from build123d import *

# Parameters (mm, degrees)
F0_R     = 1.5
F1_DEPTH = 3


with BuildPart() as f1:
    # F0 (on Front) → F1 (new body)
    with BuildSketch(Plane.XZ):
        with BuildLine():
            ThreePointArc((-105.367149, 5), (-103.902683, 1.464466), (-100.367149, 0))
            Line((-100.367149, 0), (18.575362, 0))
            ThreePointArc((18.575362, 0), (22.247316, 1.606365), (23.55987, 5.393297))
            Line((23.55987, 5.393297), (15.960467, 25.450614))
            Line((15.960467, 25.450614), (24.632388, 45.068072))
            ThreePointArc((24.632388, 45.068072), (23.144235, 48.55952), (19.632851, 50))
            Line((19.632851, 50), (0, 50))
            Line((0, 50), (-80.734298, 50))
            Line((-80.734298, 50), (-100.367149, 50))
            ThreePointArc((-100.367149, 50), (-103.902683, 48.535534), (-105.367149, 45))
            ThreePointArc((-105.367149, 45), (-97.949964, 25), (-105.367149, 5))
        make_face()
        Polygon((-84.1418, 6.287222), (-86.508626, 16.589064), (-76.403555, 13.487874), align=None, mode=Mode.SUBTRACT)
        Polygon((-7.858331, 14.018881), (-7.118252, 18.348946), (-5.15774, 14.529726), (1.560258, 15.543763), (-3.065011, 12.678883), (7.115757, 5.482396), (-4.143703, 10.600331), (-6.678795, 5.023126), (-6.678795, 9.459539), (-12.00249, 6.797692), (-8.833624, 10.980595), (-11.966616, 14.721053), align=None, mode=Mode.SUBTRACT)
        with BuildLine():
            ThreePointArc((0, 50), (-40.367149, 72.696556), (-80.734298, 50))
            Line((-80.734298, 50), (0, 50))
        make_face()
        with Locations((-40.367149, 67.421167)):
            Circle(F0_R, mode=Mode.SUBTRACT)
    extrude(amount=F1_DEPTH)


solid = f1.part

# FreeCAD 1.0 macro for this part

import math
import FreeCAD as App
import Part
import Sketcher
Q = App.Units.Quantity

doc = App.newDocument("Part")
body = doc.addObject("PartDesign::Body", "Body")

sketch1 = body.newObject("Sketcher::SketchObject", "Sketch")
sketch1.AttachmentSupport = (doc.getObject("XZ_Plane"), [""])
sketch1.MapMode = "FlatFace"
sketch1.addGeometry(Part.ArcOfCircle(Part.Circle(App.Vector(-100.4, 5, 0), App.Vector(0, 0, 1), 5), math.radians(180), math.radians(270)), False)
sketch1.addGeometry(Part.LineSegment(App.Vector(-100.4, 0, 0), App.Vector(18.6, 0, 0)), False)
sketch1.addGeometry(Part.ArcOfCircle(Part.Circle(App.Vector(18.6, 5, 0), App.Vector(0, 0, 1), 5), math.radians(-90), math.radians(5)), False)
sketch1.addGeometry(Part.LineSegment(App.Vector(23.6, 5.4, 0), App.Vector(16, 25.5, 0)), False)
sketch1.addGeometry(Part.LineSegment(App.Vector(16, 25.5, 0), App.Vector(24.6, 45.1, 0)), False)
sketch1.addGeometry(Part.ArcOfCircle(Part.Circle(App.Vector(19.6, 45, 0), App.Vector(0, 0, 1), 5), math.radians(1), math.radians(90)), False)
sketch1.addGeometry(Part.LineSegment(App.Vector(19.6, 50, 0), App.Vector(0, 50, 0)), False)
sketch1.addGeometry(Part.ArcOfCircle(Part.Circle(App.Vector(-40.4, 25.5, 0), App.Vector(0, 0, 1), 47.2), math.radians(31), math.radians(149)), False)
sketch1.addGeometry(Part.LineSegment(App.Vector(-80.7, 50, 0), App.Vector(-100.4, 50, 0)), False)
sketch1.addGeometry(Part.ArcOfCircle(Part.Circle(App.Vector(-100.4, 45, 0), App.Vector(0, 0, 1), 5), math.radians(90), math.radians(180)), False)
sketch1.addGeometry(Part.ArcOfCircle(Part.Circle(App.Vector(-128.6, 25, 0), App.Vector(0, 0, 1), 30.7), math.radians(-41), math.radians(41)), False)
sketch1.addGeometry(Part.LineSegment(App.Vector(-76.4, 13.5, 0), App.Vector(-84.1, 6.3, 0)), False)
sketch1.addGeometry(Part.LineSegment(App.Vector(-84.1, 6.3, 0), App.Vector(-86.5, 16.6, 0)), False)
sketch1.addGeometry(Part.LineSegment(App.Vector(-86.5, 16.6, 0), App.Vector(-76.4, 13.5, 0)), False)
sketch1.addGeometry(Part.LineSegment(App.Vector(-12, 14.7, 0), App.Vector(-7.9, 14, 0)), False)
sketch1.addGeometry(Part.LineSegment(App.Vector(-7.9, 14, 0), App.Vector(-7.1, 18.3, 0)), False)
sketch1.addGeometry(Part.LineSegment(App.Vector(-7.1, 18.3, 0), App.Vector(-5.2, 14.5, 0)), False)
sketch1.addGeometry(Part.LineSegment(App.Vector(-5.2, 14.5, 0), App.Vector(1.6, 15.5, 0)), False)
sketch1.addGeometry(Part.LineSegment(App.Vector(1.6, 15.5, 0), App.Vector(-3.1, 12.7, 0)), False)
sketch1.addGeometry(Part.LineSegment(App.Vector(-3.1, 12.7, 0), App.Vector(7.1, 5.5, 0)), False)
sketch1.addGeometry(Part.LineSegment(App.Vector(7.1, 5.5, 0), App.Vector(-4.1, 10.6, 0)), False)
sketch1.addGeometry(Part.LineSegment(App.Vector(-4.1, 10.6, 0), App.Vector(-6.7, 5, 0)), False)
sketch1.addGeometry(Part.LineSegment(App.Vector(-6.7, 5, 0), App.Vector(-6.7, 9.5, 0)), False)
sketch1.addGeometry(Part.LineSegment(App.Vector(-6.7, 9.5, 0), App.Vector(-12, 6.8, 0)), False)
sketch1.addGeometry(Part.LineSegment(App.Vector(-12, 6.8, 0), App.Vector(-8.8, 11, 0)), False)
sketch1.addGeometry(Part.LineSegment(App.Vector(-8.8, 11, 0), App.Vector(-12, 14.7, 0)), False)
sketch1.addGeometry(Part.Circle(App.Vector(-40.4, 67.4, 0), App.Vector(0, 0, 1), 1.5), False)
sketch1.addConstraint(Sketcher.Constraint("Tangent", 0, 2, 1, 1))
sketch1.addConstraint(Sketcher.Constraint("Tangent", 1, 2, 2, 1))
sketch1.addConstraint(Sketcher.Constraint("Coincident", 2, 2, 3, 1))
sketch1.addConstraint(Sketcher.Constraint("Coincident", 3, 2, 4, 1))
sketch1.addConstraint(Sketcher.Constraint("Coincident", 4, 2, 5, 1))
sketch1.addConstraint(Sketcher.Constraint("Tangent", 5, 2, 6, 1))
sketch1.addConstraint(Sketcher.Constraint("Coincident", 6, 2, 7, 1))
sketch1.addConstraint(Sketcher.Constraint("Coincident", 7, 2, 8, 1))
sketch1.addConstraint(Sketcher.Constraint("Tangent", 8, 2, 9, 1))
sketch1.addConstraint(Sketcher.Constraint("Coincident", 9, 2, 10, 2))
sketch1.addConstraint(Sketcher.Constraint("Coincident", 10, 1, 0, 1))
sketch1.addConstraint(Sketcher.Constraint("Coincident", 11, 2, 12, 1))
sketch1.addConstraint(Sketcher.Constraint("Coincident", 12, 2, 13, 1))
sketch1.addConstraint(Sketcher.Constraint("Coincident", 13, 2, 11, 1))
sketch1.addConstraint(Sketcher.Constraint("Coincident", 14, 2, 15, 1))
sketch1.addConstraint(Sketcher.Constraint("Coincident", 15, 2, 16, 1))
sketch1.addConstraint(Sketcher.Constraint("Coincident", 16, 2, 17, 1))
sketch1.addConstraint(Sketcher.Constraint("Coincident", 17, 2, 18, 1))
sketch1.addConstraint(Sketcher.Constraint("Coincident", 18, 2, 19, 1))
sketch1.addConstraint(Sketcher.Constraint("Coincident", 19, 2, 20, 1))
sketch1.addConstraint(Sketcher.Constraint("Coincident", 20, 2, 21, 1))
sketch1.addConstraint(Sketcher.Constraint("Coincident", 21, 2, 22, 1))
sketch1.addConstraint(Sketcher.Constraint("Coincident", 22, 2, 23, 1))
sketch1.addConstraint(Sketcher.Constraint("Coincident", 23, 2, 24, 1))
sketch1.addConstraint(Sketcher.Constraint("Coincident", 24, 2, 25, 1))
sketch1.addConstraint(Sketcher.Constraint("Coincident", 25, 2, 14, 1))
sketch1.addConstraint(Sketcher.Constraint("Horizontal", 1))
sketch1.addConstraint(Sketcher.Constraint("Horizontal", 6))
sketch1.addConstraint(Sketcher.Constraint("Horizontal", 8))
sketch1.addConstraint(Sketcher.Constraint("Vertical", 22))
sketch1.addConstraint(Sketcher.Constraint("Equal", 0, 2))
sketch1.addConstraint(Sketcher.Constraint("Equal", 2, 5))
sketch1.addConstraint(Sketcher.Constraint("Equal", 5, 9))
sketch1.addConstraint(Sketcher.Constraint("PointOnObject", 0, 2, -1))
sketch1.addConstraint(Sketcher.Constraint("PointOnObject", 6, 2, -2))
sketch1.addConstraint(Sketcher.Constraint("Perpendicular", 14, 15))
sketch1.addConstraint(Sketcher.Constraint("Perpendicular", 20, 21))
sketch1.addConstraint(Sketcher.Constraint("Horizontal", 5, 3, 9, 3))
sketch1.addConstraint(Sketcher.Constraint("Horizontal", 7, 3, 3, 2))
sketch1.addConstraint(Sketcher.Constraint("Horizontal", 5, 3, 9, 2))
sketch1.addConstraint(Sketcher.Constraint("Horizontal", 2, 3, 10, 1))
sketch1.addConstraint(Sketcher.Constraint("Vertical", 0, 3, 9, 3))
sketch1.addConstraint(Sketcher.Constraint("Vertical", 7, 3, 26, 3))
sketch1.addConstraint(Sketcher.Constraint("Equal", 6, 8))
sketch1.addConstraint(Sketcher.Constraint("Equal", 3, 4))
sketch1.addConstraint(Sketcher.Constraint("Equal", 11, 12))
sketch1.addConstraint(Sketcher.Constraint("Equal", 12, 13))
sketch1.addConstraint(Sketcher.Constraint("Diameter", 26, Q("3 mm")))
sketch1.addConstraint(Sketcher.Constraint("Radius", 0, Q("5 mm")))
sketch1.addConstraint(Sketcher.Constraint("DistanceY", -1, 1, 5, 3, Q("44.999999 mm")))
sketch1.addConstraint(Sketcher.Constraint("Radius", 10, Q("30.673 mm")))
sketch1.addConstraint(Sketcher.Constraint("DistanceX", 0, 3, 5, 3, Q("120 mm")))
sketch1.addConstraint(Sketcher.Constraint("Radius", 7, Q("47.245943 mm")))
sketch1.addConstraint(Sketcher.Constraint("DistanceX", 16, 2, 17, 2, Q("6.717998 mm")))
sketch1.addConstraint(Sketcher.Constraint("Distance", 17, Q("6.794098 mm")))
sketch1.addConstraint(Sketcher.Constraint("DistanceX", 1, 1, 1, 2, Q("118.942511 mm")))
sketch1.addConstraint(Sketcher.Constraint("DistanceX", 6, 2, 6, 1, Q("19.632851 mm")))
sketch1.addConstraint(Sketcher.Constraint("DistanceX", 11, 2, -1, 1, Q("84.1418 mm")))
sketch1.addConstraint(Sketcher.Constraint("DistanceX", 14, 2, 3, 2, Q("23.818798 mm")))
sketch1.addConstraint(Sketcher.Constraint("DistanceX", 14, 2, 2, 2, Q("31.418201 mm")))
sketch1.addConstraint(Sketcher.Constraint("DistanceX", 16, 2, 1, 2, Q("23.733102 mm")))
sketch1.addConstraint(Sketcher.Constraint("DistanceX", 17, 2, 19, 2, Q("5.555499 mm")))
sketch1.addConstraint(Sketcher.Constraint("DistanceY", 21, 2, 16, 2, Q("9.5066 mm")))
sketch1.addConstraint(Sketcher.Constraint("Distance", 14, Q("4.167859 mm")))
sketch1.addConstraint(Sketcher.Constraint("Distance", 18, Q("5.440648 mm")))
sketch1.addConstraint(Sketcher.Constraint("Distance", 20, Q("12.368052 mm")))
sketch1.addConstraint(Sketcher.Constraint("Distance", 21, Q("6.126329 mm")))
sketch1.addConstraint(Sketcher.Constraint("Distance", 23, Q("5.952072 mm")))
sketch1.addConstraint(Sketcher.Constraint("DistanceY", 22, 1, 22, 2, Q("4.436413 mm")))
sketch1.addConstraint(Sketcher.Constraint("DistanceX", -1, 1, 2, 2, Q("23.55987 mm")))
sketch1.addConstraint(Sketcher.Constraint("DistanceY", -1, 1, 14, 2, Q("14.018881 mm")))
sketch1.addConstraint(Sketcher.Constraint("DistanceX", 18, 2, -1, 1, Q("3.065011 mm")))
sketch1.addConstraint(Sketcher.Constraint("DistanceY", -1, 1, 20, 2, Q("10.600331 mm")))
sketch1.addConstraint(Sketcher.Constraint("DistanceY", -1, 1, 22, 2, Q("9.459539 mm")))
sketch1.addConstraint(Sketcher.Constraint("DistanceX", 23, 2, -1, 1, Q("12.00249 mm")))
sketch1.addConstraint(Sketcher.Constraint("DistanceY", 2, 2, 26, 3, Q("62.02787 mm")))
sketch1.addConstraint(Sketcher.Constraint("DistanceY", 0, 2, 11, 2, Q("6.287222 mm")))
sketch1.addConstraint(Sketcher.Constraint("DistanceY", 11, 2, 13, 2, Q("7.200652 mm")))
sketch1.addConstraint(Sketcher.Constraint("DistanceX", 12, 2, 13, 2, Q("10.105071 mm")))
sketch1.addConstraint(Sketcher.Constraint("DistanceX", 14, 2, 15, 2, Q("0.740079 mm")))
sketch1.addConstraint(Sketcher.Constraint("DistanceY", 16, 2, 15, 2, Q("3.81922 mm")))
sketch1.addConstraint(Sketcher.Constraint("DistanceX", 24, 2, 22, 2, Q("2.154829 mm")))
sketch1.addConstraint(Sketcher.Constraint("DistanceY", 24, 2, 16, 2, Q("3.549131 mm")))
pad1 = body.newObject("PartDesign::Pad", "Pad")
pad1.Profile = sketch1
pad1.Length = 3

doc.recompute()
